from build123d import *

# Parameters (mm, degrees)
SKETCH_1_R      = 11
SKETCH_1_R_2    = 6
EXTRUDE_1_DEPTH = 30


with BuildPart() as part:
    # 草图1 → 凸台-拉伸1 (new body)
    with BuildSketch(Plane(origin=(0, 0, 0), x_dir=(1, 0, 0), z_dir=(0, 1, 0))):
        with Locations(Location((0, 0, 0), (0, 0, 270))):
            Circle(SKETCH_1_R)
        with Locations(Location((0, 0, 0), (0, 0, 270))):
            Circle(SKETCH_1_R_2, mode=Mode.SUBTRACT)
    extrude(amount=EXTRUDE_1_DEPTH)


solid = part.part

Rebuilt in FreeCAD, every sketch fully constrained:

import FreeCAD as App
import Part
import Sketcher

doc = App.newDocument("Part")
body = doc.addObject("PartDesign::Body", "Body")

# Sketch on XZ plane
sketch1 = body.newObject("Sketcher::SketchObject", "Sketch")
sketch1.AttachmentSupport = (doc.getObject("XZ_Plane"), [""])
sketch1.MapMode = "FlatFace"
sketch1.addGeometry([
    Part.Circle(App.Vector(0, 0, 0), App.Vector(0, 0, 1), 11),
    Part.Circle(App.Vector(0, 0, 0), App.Vector(0, 0, 1), 6),
], False)
sketch1.addConstraint([
    Sketcher.Constraint("Coincident", 0, 3, -1, 1),
    Sketcher.Constraint("Coincident", 1, 3, -1, 1),
    Sketcher.Constraint("Diameter", 0, 22.0),
    Sketcher.Constraint("Diameter", 1, 12.0),
])
pad1 = body.newObject("PartDesign::Pad", "Pad")
pad1.Profile = sketch1
pad1.Length = 30
pad1.Reversed = True

doc.recompute()
